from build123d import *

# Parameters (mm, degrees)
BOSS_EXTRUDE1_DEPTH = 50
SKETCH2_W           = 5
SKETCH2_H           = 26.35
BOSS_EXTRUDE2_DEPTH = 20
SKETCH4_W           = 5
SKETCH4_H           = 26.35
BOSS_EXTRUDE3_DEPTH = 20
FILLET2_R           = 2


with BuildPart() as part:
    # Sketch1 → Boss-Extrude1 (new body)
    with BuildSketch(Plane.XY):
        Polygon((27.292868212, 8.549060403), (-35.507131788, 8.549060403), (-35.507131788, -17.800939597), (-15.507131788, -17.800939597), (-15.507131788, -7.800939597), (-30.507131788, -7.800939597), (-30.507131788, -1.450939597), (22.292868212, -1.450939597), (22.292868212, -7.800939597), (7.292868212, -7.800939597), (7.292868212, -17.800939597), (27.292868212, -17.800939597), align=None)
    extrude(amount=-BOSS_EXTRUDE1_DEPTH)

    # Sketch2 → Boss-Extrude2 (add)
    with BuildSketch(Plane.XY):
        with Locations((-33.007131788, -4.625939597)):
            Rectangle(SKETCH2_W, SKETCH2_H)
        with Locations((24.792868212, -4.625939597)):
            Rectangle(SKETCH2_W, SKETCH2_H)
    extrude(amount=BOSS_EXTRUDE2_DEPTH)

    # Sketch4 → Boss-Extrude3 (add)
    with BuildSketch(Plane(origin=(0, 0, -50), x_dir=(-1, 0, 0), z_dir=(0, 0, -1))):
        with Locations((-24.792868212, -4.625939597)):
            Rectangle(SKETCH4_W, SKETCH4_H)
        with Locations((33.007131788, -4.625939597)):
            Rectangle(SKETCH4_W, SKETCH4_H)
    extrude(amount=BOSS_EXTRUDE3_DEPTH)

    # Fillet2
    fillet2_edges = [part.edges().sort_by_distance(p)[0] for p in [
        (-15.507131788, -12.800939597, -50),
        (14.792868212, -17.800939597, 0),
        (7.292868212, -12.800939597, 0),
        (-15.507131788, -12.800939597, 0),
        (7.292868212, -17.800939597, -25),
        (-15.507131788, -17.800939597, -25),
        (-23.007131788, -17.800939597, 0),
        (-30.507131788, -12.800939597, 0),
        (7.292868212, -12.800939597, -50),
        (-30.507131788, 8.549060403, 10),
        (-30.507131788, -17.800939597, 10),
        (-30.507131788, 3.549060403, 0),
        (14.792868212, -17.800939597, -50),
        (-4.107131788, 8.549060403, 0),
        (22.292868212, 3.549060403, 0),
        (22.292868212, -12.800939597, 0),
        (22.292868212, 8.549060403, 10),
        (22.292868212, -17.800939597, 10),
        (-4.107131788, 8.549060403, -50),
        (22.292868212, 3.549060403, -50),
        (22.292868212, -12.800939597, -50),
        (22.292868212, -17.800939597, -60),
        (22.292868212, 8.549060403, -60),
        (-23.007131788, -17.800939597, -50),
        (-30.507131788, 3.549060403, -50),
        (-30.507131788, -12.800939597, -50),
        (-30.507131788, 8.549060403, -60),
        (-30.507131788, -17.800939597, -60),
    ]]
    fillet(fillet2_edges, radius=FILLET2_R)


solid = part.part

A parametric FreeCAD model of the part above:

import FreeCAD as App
import Part
import Sketcher

V = App.Vector


def edges_at(feature, points):
    """Names of the edges that pass closest to the given points."""
    edges = feature.Shape.Edges
    near = lambda p: min(range(len(edges)), key=lambda i: edges[i].distToShape(Part.Vertex(*p))[0])
    return sorted({f"Edge{near(p) + 1}" for p in points})


def add_polygon(sketch, points):
    """Adds a closed chain of lines whose ends are joined by coincident constraints."""
    first, n = sketch.GeometryCount, len(points)
    for a, b in zip(points, points[1:] + points[:1]):
        sketch.addGeometry(Part.LineSegment(App.Vector(*a, 0), App.Vector(*b, 0)), False)
    for i in range(n):
        sketch.addConstraint(Sketcher.Constraint("Coincident", first + i, 2, first + (i + 1) % n, 1))

doc = App.newDocument("Part")
body = doc.addObject("PartDesign::Body", "Body")

# Sketch on XY plane
sketch1 = body.newObject("Sketcher::SketchObject", "Sketch")
sketch1.AttachmentSupport = (doc.getObject("XY_Plane"), [""])
sketch1.MapMode = "FlatFace"
add_polygon(sketch1, [(27.292868, 8.54906), (-35.507132, 8.54906), (-35.507132, -17.80094), (-15.507132, -17.80094), (-15.507132, -7.80094), (-30.507132, -7.80094), (-30.507132, -1.45094), (22.292868, -1.45094), (22.292868, -7.80094), (7.292868, -7.80094), (7.292868, -17.80094), (27.292868, -17.80094)])  # lines 0-11
sketch1.addConstraint([
    Sketcher.Constraint("Horizontal", 0),
    Sketcher.Constraint("Vertical", 1),
    Sketcher.Constraint("Horizontal", 2),
    Sketcher.Constraint("Vertical", 3),
    Sketcher.Constraint("Horizontal", 4),
    Sketcher.Constraint("Vertical", 5),
    Sketcher.Constraint("Horizontal", 6),
    Sketcher.Constraint("Vertical", 7),
    Sketcher.Constraint("Horizontal", 8),
    Sketcher.Constraint("Vertical", 9),
    Sketcher.Constraint("Horizontal", 10),
    Sketcher.Constraint("Vertical", 11),
    Sketcher.Constraint("Horizontal", 4, 2, 7, 2),
    Sketcher.Constraint("Horizontal", 2, 2, 9, 2),
    Sketcher.Constraint("Equal", 4, 8),
    Sketcher.Constraint("Equal", 2, 10),
    Sketcher.Constraint("DistanceX", 2, 1, 2, 2, 20.0),
    Sketcher.Constraint("DistanceX", 4, 2, 4, 1, 15.0),
    Sketcher.Constraint("DistanceY", 3, 1, 3, 2, 10.0),
    Sketcher.Constraint("DistanceX", 0, 2, 0, 1, 62.8),
    Sketcher.Constraint("DistanceY", 5, 2, 0, 2, 10.0),
    Sketcher.Constraint("DistanceY", 1, 2, 1, 1, 26.35),
    Sketcher.Constraint("DistanceX", 0, 2, -1, 1, 35.507132),
    Sketcher.Constraint("DistanceY", -1, 1, 0, 2, 8.54906),
])
pad1 = body.newObject("PartDesign::Pad", "Pad")
pad1.Profile = sketch1
pad1.Length = 50
pad1.Reversed = True

# Sketch on XY plane
sketch2 = body.newObject("Sketcher::SketchObject", "Sketch001")
sketch2.AttachmentSupport = (doc.getObject("XY_Plane"), [""])
sketch2.MapMode = "FlatFace"
add_polygon(sketch2, [(-35.507132, 8.54906), (-35.507132, -17.80094), (-30.507132, -17.80094), (-30.507132, 8.54906)])  # lines 0-3
add_polygon(sketch2, [(22.292868, 8.54906), (22.292868, -17.80094), (27.292868, -17.80094), (27.292868, 8.54906)])  # lines 4-7
sketch2.addConstraint([
    Sketcher.Constraint("Vertical", 0),
    Sketcher.Constraint("Horizontal", 1),
    Sketcher.Constraint("Vertical", 2),
    Sketcher.Constraint("Horizontal", 3),
    Sketcher.Constraint("Vertical", 4),
    Sketcher.Constraint("Horizontal", 5),
    Sketcher.Constraint("Vertical", 6),
    Sketcher.Constraint("Horizontal", 7),
    Sketcher.Constraint("Horizontal", 1, 2, 4, 2),
    Sketcher.Constraint("Horizontal", 3, 2, 6, 2),
    Sketcher.Constraint("Equal", 3, 5),
    Sketcher.Constraint("DistanceX", 1, 1, 1, 2, 5.0),
    Sketcher.Constraint("DistanceY", 0, 2, 0, 1, 26.35),
    Sketcher.Constraint("DistanceX", 1, 2, 4, 2, 52.8),
    Sketcher.Constraint("DistanceX", 0, 2, -1, 1, 35.507132),
    Sketcher.Constraint("DistanceY", 0, 2, -1, 1, 17.80094),
])
pad2 = body.newObject("PartDesign::Pad", "Pad001")
pad2.Profile = sketch2
pad2.Length = 20

# Sketch on XY plane
sketch3 = body.newObject("Sketcher::SketchObject", "Sketch002")
sketch3.AttachmentSupport = (doc.getObject("XY_Plane"), [""])
sketch3.MapMode = "FlatFace"
sketch3.AttachmentOffset = App.Placement(V(0, 0, -50), App.Rotation())
add_polygon(sketch3, [(27.292868, 8.54906), (27.292868, -17.80094), (22.292868, -17.80094), (22.292868, 8.54906)])  # lines 0-3
add_polygon(sketch3, [(-30.507132, 8.54906), (-30.507132, -17.80094), (-35.507132, -17.80094), (-35.507132, 8.54906)])  # lines 4-7
sketch3.addConstraint([
    Sketcher.Constraint("Vertical", 0),
    Sketcher.Constraint("Horizontal", 1),
    Sketcher.Constraint("Vertical", 2),
    Sketcher.Constraint("Horizontal", 3),
    Sketcher.Constraint("Vertical", 4),
    Sketcher.Constraint("Horizontal", 5),
    Sketcher.Constraint("Vertical", 6),
    Sketcher.Constraint("Horizontal", 7),
    Sketcher.Constraint("Horizontal", 1, 2, 4, 2),
    Sketcher.Constraint("Horizontal", 3, 2, 6, 2),
    Sketcher.Constraint("Equal", 3, 5),
    Sketcher.Constraint("DistanceX", 1, 2, 1, 1, 5.0),
    Sketcher.Constraint("DistanceY", 0, 2, 0, 1, 26.35),
    Sketcher.Constraint("DistanceX", 4, 2, 1, 2, 52.8),
    Sketcher.Constraint("DistanceX", -1, 1, 0, 2, 27.292868),
    Sketcher.Constraint("DistanceY", 0, 2, -1, 1, 17.80094),
])
pad3 = body.newObject("PartDesign::Pad", "Pad002")
pad3.Profile = sketch3
pad3.Length = 20
pad3.Reversed = True
doc.recompute()

fillet = body.newObject("PartDesign::Fillet", "Fillet")
fillet.Base = (pad3, edges_at(pad3, [
    (-15.507, -12.801, -50),
    (14.793, -17.801, 0),
    (7.293, -12.801, 0),
    (-15.507, -12.801, 0),
    (7.293, -17.801, -25),
    (-15.507, -17.801, -25),
    (-23.007, -17.801, 0),
    (-30.507, -12.801, 0),
    (7.293, -12.801, -50),
    (-30.507, 8.549, 10),
    (-30.507, -17.801, 10),
    (-30.507, 3.549, 0),
    (14.793, -17.801, -50),
    (-4.107, 8.549, 0),
    (22.293, 3.549, 0),
    (22.293, -12.801, 0),
    (22.293, 8.549, 10),
    (22.293, -17.801, 10),
    (-4.107, 8.549, -50),
    (22.293, 3.549, -50),
    (22.293, -12.801, -50),
    (22.293, -17.801, -60),
    (22.293, 8.549, -60),
    (-23.007, -17.801, -50),
    (-30.507, 3.549, -50),
    (-30.507, -12.801, -50),
    (-30.507, 8.549, -60),
    (-30.507, -17.801, -60),
]))
fillet.Radius = 2

doc.recompute()
